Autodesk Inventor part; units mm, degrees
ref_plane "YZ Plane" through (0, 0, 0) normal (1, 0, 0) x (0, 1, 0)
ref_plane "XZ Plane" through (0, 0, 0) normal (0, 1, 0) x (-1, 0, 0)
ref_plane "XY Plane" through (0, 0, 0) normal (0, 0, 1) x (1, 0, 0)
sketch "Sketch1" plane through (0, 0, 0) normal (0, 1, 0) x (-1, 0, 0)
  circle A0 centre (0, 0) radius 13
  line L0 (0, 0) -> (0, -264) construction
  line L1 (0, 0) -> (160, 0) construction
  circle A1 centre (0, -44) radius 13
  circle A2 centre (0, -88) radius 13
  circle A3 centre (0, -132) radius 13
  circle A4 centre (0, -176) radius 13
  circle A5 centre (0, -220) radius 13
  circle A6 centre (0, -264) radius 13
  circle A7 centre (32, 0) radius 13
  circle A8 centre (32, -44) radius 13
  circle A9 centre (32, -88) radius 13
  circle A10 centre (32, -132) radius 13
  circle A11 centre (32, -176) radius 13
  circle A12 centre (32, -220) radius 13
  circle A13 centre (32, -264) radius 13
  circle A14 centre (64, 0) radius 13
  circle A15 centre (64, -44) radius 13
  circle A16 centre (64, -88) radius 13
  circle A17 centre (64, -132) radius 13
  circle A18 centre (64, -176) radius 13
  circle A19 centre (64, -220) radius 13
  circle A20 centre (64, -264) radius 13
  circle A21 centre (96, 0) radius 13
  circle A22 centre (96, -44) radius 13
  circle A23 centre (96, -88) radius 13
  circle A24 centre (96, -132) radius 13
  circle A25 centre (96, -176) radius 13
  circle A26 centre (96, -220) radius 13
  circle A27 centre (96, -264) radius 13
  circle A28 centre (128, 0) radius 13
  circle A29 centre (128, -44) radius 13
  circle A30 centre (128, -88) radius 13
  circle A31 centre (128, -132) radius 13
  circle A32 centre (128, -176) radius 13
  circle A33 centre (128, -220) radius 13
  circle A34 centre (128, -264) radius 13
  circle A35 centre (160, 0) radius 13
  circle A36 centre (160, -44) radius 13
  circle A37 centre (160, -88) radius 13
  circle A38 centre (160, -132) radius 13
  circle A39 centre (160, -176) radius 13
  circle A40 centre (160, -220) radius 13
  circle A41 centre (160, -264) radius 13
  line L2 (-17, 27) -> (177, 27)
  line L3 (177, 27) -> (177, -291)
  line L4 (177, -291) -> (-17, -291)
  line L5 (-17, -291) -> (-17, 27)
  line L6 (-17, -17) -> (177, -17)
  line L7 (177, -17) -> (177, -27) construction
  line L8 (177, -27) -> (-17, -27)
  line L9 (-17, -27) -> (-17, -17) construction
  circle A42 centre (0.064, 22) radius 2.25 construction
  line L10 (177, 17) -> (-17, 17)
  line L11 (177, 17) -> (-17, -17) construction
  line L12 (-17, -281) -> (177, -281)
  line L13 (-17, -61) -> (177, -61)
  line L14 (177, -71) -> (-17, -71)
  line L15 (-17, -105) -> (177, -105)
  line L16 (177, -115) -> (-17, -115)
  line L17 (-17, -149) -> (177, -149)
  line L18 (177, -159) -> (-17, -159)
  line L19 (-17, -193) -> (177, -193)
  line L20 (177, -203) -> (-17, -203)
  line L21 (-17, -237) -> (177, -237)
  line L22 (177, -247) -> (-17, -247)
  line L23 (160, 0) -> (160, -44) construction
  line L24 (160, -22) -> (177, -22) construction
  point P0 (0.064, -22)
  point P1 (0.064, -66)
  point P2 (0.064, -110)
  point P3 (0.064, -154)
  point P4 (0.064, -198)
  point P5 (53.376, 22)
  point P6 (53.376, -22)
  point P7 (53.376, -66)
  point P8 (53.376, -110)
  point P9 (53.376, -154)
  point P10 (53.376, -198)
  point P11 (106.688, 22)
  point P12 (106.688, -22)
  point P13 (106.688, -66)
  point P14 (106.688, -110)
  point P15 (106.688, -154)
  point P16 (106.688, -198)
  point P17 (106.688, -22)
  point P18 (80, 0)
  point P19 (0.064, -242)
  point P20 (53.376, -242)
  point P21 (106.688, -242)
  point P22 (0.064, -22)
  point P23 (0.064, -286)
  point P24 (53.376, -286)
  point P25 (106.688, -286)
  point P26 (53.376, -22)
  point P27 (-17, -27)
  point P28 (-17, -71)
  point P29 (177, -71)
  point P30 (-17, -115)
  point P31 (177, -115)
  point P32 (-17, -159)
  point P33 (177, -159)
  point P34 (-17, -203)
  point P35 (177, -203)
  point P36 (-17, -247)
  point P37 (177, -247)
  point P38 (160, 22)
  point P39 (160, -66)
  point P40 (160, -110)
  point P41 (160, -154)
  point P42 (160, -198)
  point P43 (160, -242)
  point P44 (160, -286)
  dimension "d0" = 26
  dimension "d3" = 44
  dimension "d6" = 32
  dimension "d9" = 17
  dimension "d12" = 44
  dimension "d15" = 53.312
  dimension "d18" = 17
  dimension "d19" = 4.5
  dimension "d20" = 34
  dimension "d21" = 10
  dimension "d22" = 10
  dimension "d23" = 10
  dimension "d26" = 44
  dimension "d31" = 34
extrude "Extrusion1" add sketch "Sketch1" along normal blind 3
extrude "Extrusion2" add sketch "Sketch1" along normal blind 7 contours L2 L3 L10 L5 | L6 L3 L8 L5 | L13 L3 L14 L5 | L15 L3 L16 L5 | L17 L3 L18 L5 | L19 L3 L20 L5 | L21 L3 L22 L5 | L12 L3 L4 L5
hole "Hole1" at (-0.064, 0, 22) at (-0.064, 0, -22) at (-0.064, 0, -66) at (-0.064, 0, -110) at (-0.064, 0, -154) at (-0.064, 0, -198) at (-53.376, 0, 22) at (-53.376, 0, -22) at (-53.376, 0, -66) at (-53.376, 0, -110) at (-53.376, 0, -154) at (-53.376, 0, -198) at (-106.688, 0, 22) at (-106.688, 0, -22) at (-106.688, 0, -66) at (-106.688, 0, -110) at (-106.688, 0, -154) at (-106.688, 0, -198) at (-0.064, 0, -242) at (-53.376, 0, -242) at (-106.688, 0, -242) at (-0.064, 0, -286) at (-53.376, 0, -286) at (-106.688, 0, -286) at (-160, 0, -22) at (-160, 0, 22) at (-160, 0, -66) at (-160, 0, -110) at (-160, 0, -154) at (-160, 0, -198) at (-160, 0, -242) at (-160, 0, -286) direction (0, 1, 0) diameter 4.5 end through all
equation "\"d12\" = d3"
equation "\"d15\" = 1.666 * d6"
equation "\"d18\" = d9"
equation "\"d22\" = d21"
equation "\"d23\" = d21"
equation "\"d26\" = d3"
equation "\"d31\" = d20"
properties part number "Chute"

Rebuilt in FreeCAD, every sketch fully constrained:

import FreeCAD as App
import Part
import Sketcher

V = App.Vector

doc = App.newDocument("Part")
body = doc.addObject("PartDesign::Body", "Body")

sketch1 = doc.addObject("Sketcher::SketchObject", "Sketch")
body.addObject(sketch1)
sketch1.AttachmentSupport = (doc.XZ_Plane, [""])
sketch1.MapMode = "FlatFace"
sketch1.addGeometry([
    Part.LineSegment(V(-177, 27, 0), V(17, 27, 0)),
    Part.LineSegment(V(17, 27, 0), V(17, -291, 0)),
    Part.LineSegment(V(17, -291, 0), V(-177, -291, 0)),
    Part.LineSegment(V(-177, -291, 0), V(-177, 27, 0)),
    Part.Circle(V(-160, 0, 0), V(0, 0, 1), 13),
    Part.Circle(V(0, 0, 0), V(0, 0, 1), 13),
    Part.Circle(V(-32, 0, 0), V(0, 0, 1), 13),
    Part.Circle(V(-64, 0, 0), V(0, 0, 1), 13),
    Part.Circle(V(-96, 0, 0), V(0, 0, 1), 13),
    Part.Circle(V(-128, 0, 0), V(0, 0, 1), 13),
    Part.Circle(V(-160, -44, 0), V(0, 0, 1), 13),
    Part.Circle(V(0, -44, 0), V(0, 0, 1), 13),
    Part.Circle(V(-32, -44, 0), V(0, 0, 1), 13),
    Part.Circle(V(-64, -44, 0), V(0, 0, 1), 13),
    Part.Circle(V(-96, -44, 0), V(0, 0, 1), 13),
    Part.Circle(V(-128, -44, 0), V(0, 0, 1), 13),
    Part.Circle(V(-160, -88, 0), V(0, 0, 1), 13),
    Part.Circle(V(0, -88, 0), V(0, 0, 1), 13),
    Part.Circle(V(-32, -88, 0), V(0, 0, 1), 13),
    Part.Circle(V(-64, -88, 0), V(0, 0, 1), 13),
    Part.Circle(V(-96, -88, 0), V(0, 0, 1), 13),
    Part.Circle(V(-128, -88, 0), V(0, 0, 1), 13),
    Part.Circle(V(-160, -132, 0), V(0, 0, 1), 13),
    Part.Circle(V(0, -132, 0), V(0, 0, 1), 13),
    Part.Circle(V(-32, -132, 0), V(0, 0, 1), 13),
    Part.Circle(V(-64, -132, 0), V(0, 0, 1), 13),
    Part.Circle(V(-96, -132, 0), V(0, 0, 1), 13),
    Part.Circle(V(-128, -132, 0), V(0, 0, 1), 13),
    Part.Circle(V(-160, -176, 0), V(0, 0, 1), 13),
    Part.Circle(V(0, -176, 0), V(0, 0, 1), 13),
    Part.Circle(V(-32, -176, 0), V(0, 0, 1), 13),
    Part.Circle(V(-64, -176, 0), V(0, 0, 1), 13),
    Part.Circle(V(-96, -176, 0), V(0, 0, 1), 13),
    Part.Circle(V(-128, -176, 0), V(0, 0, 1), 13),
    Part.Circle(V(-160, -220, 0), V(0, 0, 1), 13),
    Part.Circle(V(0, -220, 0), V(0, 0, 1), 13),
    Part.Circle(V(-32, -220, 0), V(0, 0, 1), 13),
    Part.Circle(V(-64, -220, 0), V(0, 0, 1), 13),
    Part.Circle(V(-96, -220, 0), V(0, 0, 1), 13),
    Part.Circle(V(-128, -220, 0), V(0, 0, 1), 13),
    Part.Circle(V(-160, -264, 0), V(0, 0, 1), 13),
    Part.Circle(V(0, -264, 0), V(0, 0, 1), 13),
    Part.Circle(V(-32, -264, 0), V(0, 0, 1), 13),
    Part.Circle(V(-64, -264, 0), V(0, 0, 1), 13),
    Part.Circle(V(-96, -264, 0), V(0, 0, 1), 13),
    Part.Circle(V(-128, -264, 0), V(0, 0, 1), 13),
], False)
sketch1.addConstraint([
    Sketcher.Constraint("Coincident", 0, 2, 1, 1),
    Sketcher.Constraint("Coincident", 1, 2, 2, 1),
    Sketcher.Constraint("Coincident", 2, 2, 3, 1),
    Sketcher.Constraint("Coincident", 3, 2, 0, 1),
    Sketcher.Constraint("Horizontal", 0),
    Sketcher.Constraint("Vertical", 1),
    Sketcher.Constraint("Horizontal", 2),
    Sketcher.Constraint("Vertical", 3),
    Sketcher.Constraint("Coincident", 5, 3, -1, 1),
    Sketcher.Constraint("Equal", 4, 5),
    Sketcher.Constraint("Equal", 5, 6),
    Sketcher.Constraint("Equal", 6, 7),
    Sketcher.Constraint("Equal", 7, 8),
    Sketcher.Constraint("Equal", 8, 9),
    Sketcher.Constraint("Equal", 9, 10),
    Sketcher.Constraint("Equal", 10, 11),
    Sketcher.Constraint("Equal", 11, 12),
    Sketcher.Constraint("Equal", 12, 13),
    Sketcher.Constraint("Equal", 13, 14),
    Sketcher.Constraint("Equal", 14, 15),
    Sketcher.Constraint("Equal", 15, 16),
    Sketcher.Constraint("Equal", 16, 17),
    Sketcher.Constraint("Equal", 17, 18),
    Sketcher.Constraint("Equal", 18, 19),
    Sketcher.Constraint("Equal", 19, 20),
    Sketcher.Constraint("Equal", 20, 21),
    Sketcher.Constraint("Equal", 21, 22),
    Sketcher.Constraint("Equal", 22, 23),
    Sketcher.Constraint("Equal", 23, 24),
    Sketcher.Constraint("Equal", 24, 25),
    Sketcher.Constraint("Equal", 25, 26),
    Sketcher.Constraint("Equal", 26, 27),
    Sketcher.Constraint("Equal", 27, 28),
    Sketcher.Constraint("Equal", 28, 29),
    Sketcher.Constraint("Equal", 29, 30),
    Sketcher.Constraint("Equal", 30, 31),
    Sketcher.Constraint("Equal", 31, 32),
    Sketcher.Constraint("Equal", 32, 33),
    Sketcher.Constraint("Equal", 33, 34),
    Sketcher.Constraint("Equal", 34, 35),
    Sketcher.Constraint("Equal", 35, 36),
    Sketcher.Constraint("Equal", 36, 37),
    Sketcher.Constraint("Equal", 37, 38),
    Sketcher.Constraint("Equal", 38, 39),
    Sketcher.Constraint("Equal", 39, 40),
    Sketcher.Constraint("Equal", 40, 41),
    Sketcher.Constraint("Equal", 41, 42),
    Sketcher.Constraint("Equal", 42, 43),
    Sketcher.Constraint("Equal", 43, 44),
    Sketcher.Constraint("Equal", 44, 45),
    Sketcher.Constraint("PointOnObject", 4, 3, -1),
    Sketcher.Constraint("PointOnObject", 6, 3, -1),
    Sketcher.Constraint("PointOnObject", 7, 3, -1),
    Sketcher.Constraint("PointOnObject", 8, 3, -1),
    Sketcher.Constraint("PointOnObject", 9, 3, -1),
    Sketcher.Constraint("PointOnObject", 11, 3, -2),
    Sketcher.Constraint("PointOnObject", 17, 3, -2),
    Sketcher.Constraint("PointOnObject", 23, 3, -2),
    Sketcher.Constraint("PointOnObject", 29, 3, -2),
    Sketcher.Constraint("PointOnObject", 35, 3, -2),
    Sketcher.Constraint("PointOnObject", 41, 3, -2),
    Sketcher.Constraint("Horizontal", 10, 3, 11, 3),
    Sketcher.Constraint("Horizontal", 11, 3, 12, 3),
    Sketcher.Constraint("Horizontal", 12, 3, 13, 3),
    Sketcher.Constraint("Horizontal", 13, 3, 14, 3),
    Sketcher.Constraint("Horizontal", 14, 3, 15, 3),
    Sketcher.Constraint("Horizontal", 16, 3, 17, 3),
    Sketcher.Constraint("Horizontal", 17, 3, 18, 3),
    Sketcher.Constraint("Horizontal", 18, 3, 19, 3),
    Sketcher.Constraint("Horizontal", 19, 3, 20, 3),
    Sketcher.Constraint("Horizontal", 20, 3, 21, 3),
    Sketcher.Constraint("Horizontal", 22, 3, 23, 3),
    Sketcher.Constraint("Horizontal", 23, 3, 24, 3),
    Sketcher.Constraint("Horizontal", 24, 3, 25, 3),
    Sketcher.Constraint("Horizontal", 25, 3, 26, 3),
    Sketcher.Constraint("Horizontal", 26, 3, 27, 3),
    Sketcher.Constraint("Horizontal", 28, 3, 29, 3),
    Sketcher.Constraint("Horizontal", 29, 3, 30, 3),
    Sketcher.Constraint("Horizontal", 30, 3, 31, 3),
    Sketcher.Constraint("Horizontal", 31, 3, 32, 3),
    Sketcher.Constraint("Horizontal", 32, 3, 33, 3),
    Sketcher.Constraint("Horizontal", 34, 3, 35, 3),
    Sketcher.Constraint("Horizontal", 35, 3, 36, 3),
    Sketcher.Constraint("Horizontal", 36, 3, 37, 3),
    Sketcher.Constraint("Horizontal", 37, 3, 38, 3),
    Sketcher.Constraint("Horizontal", 38, 3, 39, 3),
    Sketcher.Constraint("Horizontal", 40, 3, 41, 3),
    Sketcher.Constraint("Horizontal", 41, 3, 42, 3),
    Sketcher.Constraint("Horizontal", 42, 3, 43, 3),
    Sketcher.Constraint("Horizontal", 43, 3, 44, 3),
    Sketcher.Constraint("Horizontal", 44, 3, 45, 3),
    Sketcher.Constraint("Vertical", 4, 3, 10, 3),
    Sketcher.Constraint("Vertical", 6, 3, 12, 3),
    Sketcher.Constraint("Vertical", 7, 3, 13, 3),
    Sketcher.Constraint("Vertical", 8, 3, 14, 3),
    Sketcher.Constraint("Vertical", 9, 3, 15, 3),
    Sketcher.Constraint("Vertical", 10, 3, 16, 3),
    Sketcher.Constraint("Vertical", 12, 3, 18, 3),
    Sketcher.Constraint("Vertical", 13, 3, 19, 3),
    Sketcher.Constraint("Vertical", 14, 3, 20, 3),
    Sketcher.Constraint("Vertical", 15, 3, 21, 3),
    Sketcher.Constraint("Vertical", 16, 3, 22, 3),
    Sketcher.Constraint("Vertical", 18, 3, 24, 3),
    Sketcher.Constraint("Vertical", 19, 3, 25, 3),
    Sketcher.Constraint("Vertical", 20, 3, 26, 3),
    Sketcher.Constraint("Vertical", 21, 3, 27, 3),
    Sketcher.Constraint("Vertical", 22, 3, 28, 3),
    Sketcher.Constraint("Vertical", 24, 3, 30, 3),
    Sketcher.Constraint("Vertical", 25, 3, 31, 3),
    Sketcher.Constraint("Vertical", 26, 3, 32, 3),
    Sketcher.Constraint("Vertical", 27, 3, 33, 3),
    Sketcher.Constraint("Vertical", 28, 3, 34, 3),
    Sketcher.Constraint("Vertical", 30, 3, 36, 3),
    Sketcher.Constraint("Vertical", 31, 3, 37, 3),
    Sketcher.Constraint("Vertical", 32, 3, 38, 3),
    Sketcher.Constraint("Vertical", 33, 3, 39, 3),
    Sketcher.Constraint("Vertical", 34, 3, 40, 3),
    Sketcher.Constraint("Vertical", 36, 3, 42, 3),
    Sketcher.Constraint("Vertical", 37, 3, 43, 3),
    Sketcher.Constraint("Vertical", 38, 3, 44, 3),
    Sketcher.Constraint("Vertical", 39, 3, 45, 3),
    Sketcher.Constraint("Diameter", 4, 26.0),
    Sketcher.Constraint("DistanceX", 6, 3, -1, 1, 32.0),
    Sketcher.Constraint("DistanceY", 10, 3, -1, 1, 44.0),
    Sketcher.Constraint("DistanceX", -1, 1, 0, 2, 17.0),
    Sketcher.Constraint("DistanceX", 7, 3, 6, 3, 32.0),
    Sketcher.Constraint("DistanceX", 8, 3, 7, 3, 32.0),
    Sketcher.Constraint("DistanceX", 4, 3, 9, 3, 32.0),
    Sketcher.Constraint("DistanceX", 9, 3, 8, 3, 32.0),
    Sketcher.Constraint("DistanceY", 16, 3, 10, 3, 44.0),
    Sketcher.Constraint("DistanceY", 22, 3, 16, 3, 44.0),
    Sketcher.Constraint("DistanceY", 28, 3, 22, 3, 44.0),
    Sketcher.Constraint("DistanceY", 34, 3, 28, 3, 44.0),
    Sketcher.Constraint("DistanceY", 40, 3, 34, 3, 44.0),
    Sketcher.Constraint("DistanceX", 2, 2, 40, 3, 17.0),
    Sketcher.Constraint("DistanceY", 1, 2, 1, 1, 318.0),
    Sketcher.Constraint("DistanceY", -1, 1, 0, 2, 27.0),
])
pad1 = doc.addObject("PartDesign::Pad", "Pad")
body.addObject(pad1)
pad1.Profile = sketch1
pad1.Length = 3
pad1.Reversed = True

sketch2 = doc.addObject("Sketcher::SketchObject", "Sketch001")
body.addObject(sketch2)
sketch2.AttachmentSupport = (doc.XZ_Plane, [""])
sketch2.MapMode = "FlatFace"
sketch2.addGeometry([
    Part.LineSegment(V(-177, 27, 0), V(17, 27, 0)),
    Part.LineSegment(V(17, 27, 0), V(17, 17, 0)),
    Part.LineSegment(V(17, 17, 0), V(-177, 17, 0)),
    Part.LineSegment(V(-177, 17, 0), V(-177, 27, 0)),
    Part.LineSegment(V(-177, -17, 0), V(17, -17, 0)),
    Part.LineSegment(V(17, -17, 0), V(17, -27, 0)),
    Part.LineSegment(V(17, -27, 0), V(-177, -27, 0)),
    Part.LineSegment(V(-177, -27, 0), V(-177, -17, 0)),
    Part.LineSegment(V(-177, -61, 0), V(17, -61, 0)),
    Part.LineSegment(V(17, -61, 0), V(17, -71, 0)),
    Part.LineSegment(V(17, -71, 0), V(-177, -71, 0)),
    Part.LineSegment(V(-177, -71, 0), V(-177, -61, 0)),
    Part.LineSegment(V(-177, -105, 0), V(17, -105, 0)),
    Part.LineSegment(V(17, -105, 0), V(17, -115, 0)),
    Part.LineSegment(V(17, -115, 0), V(-177, -115, 0)),
    Part.LineSegment(V(-177, -115, 0), V(-177, -105, 0)),
    Part.LineSegment(V(-177, -149, 0), V(17, -149, 0)),
    Part.LineSegment(V(17, -149, 0), V(17, -159, 0)),
    Part.LineSegment(V(17, -159, 0), V(-177, -159, 0)),
    Part.LineSegment(V(-177, -159, 0), V(-177, -149, 0)),
    Part.LineSegment(V(-177, -193, 0), V(17, -193, 0)),
    Part.LineSegment(V(17, -193, 0), V(17, -203, 0)),
    Part.LineSegment(V(17, -203, 0), V(-177, -203, 0)),
    Part.LineSegment(V(-177, -203, 0), V(-177, -193, 0)),
    Part.LineSegment(V(-177, -237, 0), V(17, -237, 0)),
    Part.LineSegment(V(17, -237, 0), V(17, -247, 0)),
    Part.LineSegment(V(17, -247, 0), V(-177, -247, 0)),
    Part.LineSegment(V(-177, -247, 0), V(-177, -237, 0)),
    Part.LineSegment(V(-177, -281, 0), V(17, -281, 0)),
    Part.LineSegment(V(17, -281, 0), V(17, -291, 0)),
    Part.LineSegment(V(17, -291, 0), V(-177, -291, 0)),
    Part.LineSegment(V(-177, -291, 0), V(-177, -281, 0)),
], False)
sketch2.addConstraint([
    Sketcher.Constraint("Coincident", 0, 2, 1, 1),
    Sketcher.Constraint("Coincident", 1, 2, 2, 1),
    Sketcher.Constraint("Coincident", 2, 2, 3, 1),
    Sketcher.Constraint("Coincident", 3, 2, 0, 1),
    Sketcher.Constraint("Coincident", 4, 2, 5, 1),
    Sketcher.Constraint("Coincident", 5, 2, 6, 1),
    Sketcher.Constraint("Coincident", 6, 2, 7, 1),
    Sketcher.Constraint("Coincident", 7, 2, 4, 1),
    Sketcher.Constraint("Coincident", 8, 2, 9, 1),
    Sketcher.Constraint("Coincident", 9, 2, 10, 1),
    Sketcher.Constraint("Coincident", 10, 2, 11, 1),
    Sketcher.Constraint("Coincident", 11, 2, 8, 1),
    Sketcher.Constraint("Coincident", 12, 2, 13, 1),
    Sketcher.Constraint("Coincident", 13, 2, 14, 1),
    Sketcher.Constraint("Coincident", 14, 2, 15, 1),
    Sketcher.Constraint("Coincident", 15, 2, 12, 1),
    Sketcher.Constraint("Coincident", 16, 2, 17, 1),
    Sketcher.Constraint("Coincident", 17, 2, 18, 1),
    Sketcher.Constraint("Coincident", 18, 2, 19, 1),
    Sketcher.Constraint("Coincident", 19, 2, 16, 1),
    Sketcher.Constraint("Coincident", 20, 2, 21, 1),
    Sketcher.Constraint("Coincident", 21, 2, 22, 1),
    Sketcher.Constraint("Coincident", 22, 2, 23, 1),
    Sketcher.Constraint("Coincident", 23, 2, 20, 1),
    Sketcher.Constraint("Coincident", 24, 2, 25, 1),
    Sketcher.Constraint("Coincident", 25, 2, 26, 1),
    Sketcher.Constraint("Coincident", 26, 2, 27, 1),
    Sketcher.Constraint("Coincident", 27, 2, 24, 1),
    Sketcher.Constraint("Coincident", 28, 2, 29, 1),
    Sketcher.Constraint("Coincident", 29, 2, 30, 1),
    Sketcher.Constraint("Coincident", 30, 2, 31, 1),
    Sketcher.Constraint("Coincident", 31, 2, 28, 1),
    Sketcher.Constraint("Horizontal", 0),
    Sketcher.Constraint("Vertical", 1),
    Sketcher.Constraint("Horizontal", 2),
    Sketcher.Constraint("Vertical", 3),
    Sketcher.Constraint("Horizontal", 4),
    Sketcher.Constraint("Vertical", 5),
    Sketcher.Constraint("Horizontal", 6),
    Sketcher.Constraint("Vertical", 7),
    Sketcher.Constraint("Horizontal", 8),
    Sketcher.Constraint("Vertical", 9),
    Sketcher.Constraint("Horizontal", 10),
    Sketcher.Constraint("Vertical", 11),
    Sketcher.Constraint("Horizontal", 12),
    Sketcher.Constraint("Vertical", 13),
    Sketcher.Constraint("Horizontal", 14),
    Sketcher.Constraint("Vertical", 15),
    Sketcher.Constraint("Horizontal", 16),
    Sketcher.Constraint("Vertical", 17),
    Sketcher.Constraint("Horizontal", 18),
    Sketcher.Constraint("Vertical", 19),
    Sketcher.Constraint("Horizontal", 20),
    Sketcher.Constraint("Vertical", 21),
    Sketcher.Constraint("Horizontal", 22),
    Sketcher.Constraint("Vertical", 23),
    Sketcher.Constraint("Horizontal", 24),
    Sketcher.Constraint("Vertical", 25),
    Sketcher.Constraint("Horizontal", 26),
    Sketcher.Constraint("Vertical", 27),
    Sketcher.Constraint("Horizontal", 28),
    Sketcher.Constraint("Vertical", 29),
    Sketcher.Constraint("Horizontal", 30),
    Sketcher.Constraint("Vertical", 31),
    Sketcher.Constraint("Symmetric", 1, 2, 4, 2, -1),
    Sketcher.Constraint("Symmetric", 3, 2, 6, 2, -1),
    Sketcher.Constraint("Vertical", 5, 2, 8, 2),
    Sketcher.Constraint("Vertical", 7, 2, 10, 2),
    Sketcher.Constraint("Vertical", 9, 2, 12, 2),
    Sketcher.Constraint("Vertical", 11, 2, 14, 2),
    Sketcher.Constraint("Vertical", 13, 2, 16, 2),
    Sketcher.Constraint("Vertical", 15, 2, 18, 2),
    Sketcher.Constraint("Vertical", 17, 2, 20, 2),
    Sketcher.Constraint("Vertical", 19, 2, 22, 2),
    Sketcher.Constraint("Vertical", 21, 2, 24, 2),
    Sketcher.Constraint("Vertical", 23, 2, 26, 2),
    Sketcher.Constraint("Vertical", 25, 2, 28, 2),
    Sketcher.Constraint("Vertical", 27, 2, 30, 2),
    Sketcher.Constraint("Equal", 7, 9),
    Sketcher.Constraint("Equal", 11, 13),
    Sketcher.Constraint("Equal", 15, 17),
    Sketcher.Constraint("Equal", 19, 21),
    Sketcher.Constraint("Equal", 23, 25),
    Sketcher.Constraint("Equal", 27, 29),
    Sketcher.Constraint("DistanceY", 1, 2, 1, 1, 10.0),
    Sketcher.Constraint("DistanceX", -1, 1, 0, 2, 17.0),
    Sketcher.Constraint("DistanceY", -1, 1, 1, 2, 17.0),
    Sketcher.Constraint("DistanceY", 8, 2, 5, 2, 34.0),
    Sketcher.Constraint("DistanceY", 12, 2, 9, 2, 34.0),
    Sketcher.Constraint("DistanceY", 16, 2, 13, 2, 34.0),
    Sketcher.Constraint("DistanceY", 20, 2, 17, 2, 34.0),
    Sketcher.Constraint("DistanceY", 24, 2, 21, 2, 34.0),
    Sketcher.Constraint("DistanceY", 28, 2, 25, 2, 34.0),
    Sketcher.Constraint("DistanceX", 0, 1, 0, 2, 194.0),
])
pad2 = doc.addObject("PartDesign::Pad", "Pad001")
body.addObject(pad2)
pad2.Profile = sketch2
pad2.Length = 7
pad2.Reversed = True

sketch3 = doc.addObject("Sketcher::SketchObject", "Sketch002")
body.addObject(sketch3)
sketch3.AttachmentSupport = (doc.XZ_Plane, [""])
sketch3.MapMode = "FlatFace"
sketch3.addGeometry([
    Part.Circle(V(-0.1, 22, 0), V(0, 0, 1), 2.2),
    Part.Circle(V(-0.1, -22, 0), V(0, 0, 1), 2.2),
    Part.Circle(V(-0.1, -66, 0), V(0, 0, 1), 2.2),
    Part.Circle(V(-0.1, -110, 0), V(0, 0, 1), 2.2),
    Part.Circle(V(-0.1, -154, 0), V(0, 0, 1), 2.2),
    Part.Circle(V(-0.1, -198, 0), V(0, 0, 1), 2.2),
    Part.Circle(V(-53.4, 22, 0), V(0, 0, 1), 2.2),
    Part.Circle(V(-53.4, -22, 0), V(0, 0, 1), 2.2),
    Part.Circle(V(-53.4, -66, 0), V(0, 0, 1), 2.2),
    Part.Circle(V(-53.4, -110, 0), V(0, 0, 1), 2.2),
    Part.Circle(V(-53.4, -154, 0), V(0, 0, 1), 2.2),
    Part.Circle(V(-53.4, -198, 0), V(0, 0, 1), 2.2),
    Part.Circle(V(-106.7, 22, 0), V(0, 0, 1), 2.2),
    Part.Circle(V(-106.7, -22, 0), V(0, 0, 1), 2.2),
    Part.Circle(V(-106.7, -66, 0), V(0, 0, 1), 2.2),
    Part.Circle(V(-106.7, -110, 0), V(0, 0, 1), 2.2),
    Part.Circle(V(-106.7, -154, 0), V(0, 0, 1), 2.2),
    Part.Circle(V(-106.7, -198, 0), V(0, 0, 1), 2.2),
    Part.Circle(V(-0.1, -242, 0), V(0, 0, 1), 2.2),
    Part.Circle(V(-53.4, -242, 0), V(0, 0, 1), 2.2),
    Part.Circle(V(-106.7, -242, 0), V(0, 0, 1), 2.2),
    Part.Circle(V(-0.1, -286, 0), V(0, 0, 1), 2.2),
    Part.Circle(V(-53.4, -286, 0), V(0, 0, 1), 2.2),
    Part.Circle(V(-106.7, -286, 0), V(0, 0, 1), 2.2),
    Part.Circle(V(-160, -22, 0), V(0, 0, 1), 2.2),
    Part.Circle(V(-160, 22, 0), V(0, 0, 1), 2.2),
    Part.Circle(V(-160, -66, 0), V(0, 0, 1), 2.2),
    Part.Circle(V(-160, -110, 0), V(0, 0, 1), 2.2),
    Part.Circle(V(-160, -154, 0), V(0, 0, 1), 2.2),
    Part.Circle(V(-160, -198, 0), V(0, 0, 1), 2.2),
    Part.Circle(V(-160, -242, 0), V(0, 0, 1), 2.2),
    Part.Circle(V(-160, -286, 0), V(0, 0, 1), 2.2),
], False)
sketch3.addConstraint([
    Sketcher.Constraint("Equal", 0, 1),
    Sketcher.Constraint("Equal", 1, 2),
    Sketcher.Constraint("Equal", 2, 3),
    Sketcher.Constraint("Equal", 3, 4),
    Sketcher.Constraint("Equal", 4, 5),
    Sketcher.Constraint("Equal", 5, 6),
    Sketcher.Constraint("Equal", 6, 7),
    Sketcher.Constraint("Equal", 7, 8),
    Sketcher.Constraint("Equal", 8, 9),
    Sketcher.Constraint("Equal", 9, 10),
    Sketcher.Constraint("Equal", 10, 11),
    Sketcher.Constraint("Equal", 11, 12),
    Sketcher.Constraint("Equal", 12, 13),
    Sketcher.Constraint("Equal", 13, 14),
    Sketcher.Constraint("Equal", 14, 15),
    Sketcher.Constraint("Equal", 15, 16),
    Sketcher.Constraint("Equal", 16, 17),
    Sketcher.Constraint("Equal", 17, 18),
    Sketcher.Constraint("Equal", 18, 19),
    Sketcher.Constraint("Equal", 19, 20),
    Sketcher.Constraint("Equal", 20, 21),
    Sketcher.Constraint("Equal", 21, 22),
    Sketcher.Constraint("Equal", 22, 23),
    Sketcher.Constraint("Equal", 23, 24),
    Sketcher.Constraint("Equal", 24, 25),
    Sketcher.Constraint("Equal", 25, 26),
    Sketcher.Constraint("Equal", 26, 27),
    Sketcher.Constraint("Equal", 27, 28),
    Sketcher.Constraint("Equal", 28, 29),
    Sketcher.Constraint("Equal", 29, 30),
    Sketcher.Constraint("Equal", 30, 31),
    Sketcher.Constraint("Symmetric", 0, 3, 1, 3, -1),
    Sketcher.Constraint("Symmetric", 6, 3, 7, 3, -1),
    Sketcher.Constraint("Symmetric", 12, 3, 13, 3, -1),
    Sketcher.Constraint("Symmetric", 24, 3, 25, 3, -1),
    Sketcher.Constraint("Horizontal", 0, 3, 6, 3),
    Sketcher.Constraint("Horizontal", 2, 3, 8, 3),
    Sketcher.Constraint("Horizontal", 3, 3, 9, 3),
    Sketcher.Constraint("Horizontal", 4, 3, 10, 3),
    Sketcher.Constraint("Horizontal", 5, 3, 11, 3),
    Sketcher.Constraint("Horizontal", 6, 3, 12, 3),
    Sketcher.Constraint("Horizontal", 8, 3, 14, 3),
    Sketcher.Constraint("Horizontal", 9, 3, 15, 3),
    Sketcher.Constraint("Horizontal", 10, 3, 16, 3),
    Sketcher.Constraint("Horizontal", 11, 3, 17, 3),
    Sketcher.Constraint("Horizontal", 18, 3, 19, 3),
    Sketcher.Constraint("Horizontal", 19, 3, 20, 3),
    Sketcher.Constraint("Horizontal", 21, 3, 22, 3),
    Sketcher.Constraint("Horizontal", 22, 3, 23, 3),
    Sketcher.Constraint("Horizontal", 13, 3, 24, 3),
    Sketcher.Constraint("Horizontal", 14, 3, 26, 3),
    Sketcher.Constraint("Horizontal", 15, 3, 27, 3),
    Sketcher.Constraint("Horizontal", 16, 3, 28, 3),
    Sketcher.Constraint("Horizontal", 17, 3, 29, 3),
    Sketcher.Constraint("Horizontal", 20, 3, 30, 3),
    Sketcher.Constraint("Horizontal", 23, 3, 31, 3),
    Sketcher.Constraint("Vertical", 1, 3, 2, 3),
    Sketcher.Constraint("Vertical", 2, 3, 3, 3),
    Sketcher.Constraint("Vertical", 3, 3, 4, 3),
    Sketcher.Constraint("Vertical", 4, 3, 5, 3),
    Sketcher.Constraint("Vertical", 7, 3, 8, 3),
    Sketcher.Constraint("Vertical", 8, 3, 9, 3),
    Sketcher.Constraint("Vertical", 9, 3, 10, 3),
    Sketcher.Constraint("Vertical", 10, 3, 11, 3),
    Sketcher.Constraint("Vertical", 13, 3, 14, 3),
    Sketcher.Constraint("Vertical", 14, 3, 15, 3),
    Sketcher.Constraint("Vertical", 15, 3, 16, 3),
    Sketcher.Constraint("Vertical", 16, 3, 17, 3),
    Sketcher.Constraint("Vertical", 5, 3, 18, 3),
    Sketcher.Constraint("Vertical", 11, 3, 19, 3),
    Sketcher.Constraint("Vertical", 17, 3, 20, 3),
    Sketcher.Constraint("Vertical", 18, 3, 21, 3),
    Sketcher.Constraint("Vertical", 19, 3, 22, 3),
    Sketcher.Constraint("Vertical", 20, 3, 23, 3),
    Sketcher.Constraint("Vertical", 25, 3, 26, 3),
    Sketcher.Constraint("Vertical", 26, 3, 27, 3),
    Sketcher.Constraint("Vertical", 27, 3, 28, 3),
    Sketcher.Constraint("Vertical", 28, 3, 29, 3),
    Sketcher.Constraint("Vertical", 29, 3, 30, 3),
    Sketcher.Constraint("Vertical", 30, 3, 31, 3),
    Sketcher.Constraint("Diameter", 0, 4.5),
    Sketcher.Constraint("DistanceY", -1, 1, 0, 3, 22.0),
    Sketcher.Constraint("DistanceY", 2, 3, -1, 1, 66.0),
    Sketcher.Constraint("DistanceY", 3, 3, -1, 1, 110.0),
    Sketcher.Constraint("DistanceY", 4, 3, -1, 1, 154.0),
    Sketcher.Constraint("DistanceY", 5, 3, -1, 1, 198.0),
    Sketcher.Constraint("DistanceY", 18, 3, -1, 1, 242.0),
    Sketcher.Constraint("DistanceY", 21, 3, -1, 1, 286.0),
    Sketcher.Constraint("DistanceX", 24, 3, -1, 1, 160.0),
    Sketcher.Constraint("DistanceX", 0, 3, -1, 1, 0.064),
    Sketcher.Constraint("DistanceX", 6, 3, -1, 1, 53.376),
    Sketcher.Constraint("DistanceX", 12, 3, -1, 1, 106.688),
])
doc.recompute()
hole = doc.addObject("PartDesign::Hole", "Hole")
body.addObject(hole)
hole.Profile = sketch3
hole.ThreadType = "None"
hole.Diameter = 4.5
hole.DepthType = "ThroughAll"

doc.recompute()
